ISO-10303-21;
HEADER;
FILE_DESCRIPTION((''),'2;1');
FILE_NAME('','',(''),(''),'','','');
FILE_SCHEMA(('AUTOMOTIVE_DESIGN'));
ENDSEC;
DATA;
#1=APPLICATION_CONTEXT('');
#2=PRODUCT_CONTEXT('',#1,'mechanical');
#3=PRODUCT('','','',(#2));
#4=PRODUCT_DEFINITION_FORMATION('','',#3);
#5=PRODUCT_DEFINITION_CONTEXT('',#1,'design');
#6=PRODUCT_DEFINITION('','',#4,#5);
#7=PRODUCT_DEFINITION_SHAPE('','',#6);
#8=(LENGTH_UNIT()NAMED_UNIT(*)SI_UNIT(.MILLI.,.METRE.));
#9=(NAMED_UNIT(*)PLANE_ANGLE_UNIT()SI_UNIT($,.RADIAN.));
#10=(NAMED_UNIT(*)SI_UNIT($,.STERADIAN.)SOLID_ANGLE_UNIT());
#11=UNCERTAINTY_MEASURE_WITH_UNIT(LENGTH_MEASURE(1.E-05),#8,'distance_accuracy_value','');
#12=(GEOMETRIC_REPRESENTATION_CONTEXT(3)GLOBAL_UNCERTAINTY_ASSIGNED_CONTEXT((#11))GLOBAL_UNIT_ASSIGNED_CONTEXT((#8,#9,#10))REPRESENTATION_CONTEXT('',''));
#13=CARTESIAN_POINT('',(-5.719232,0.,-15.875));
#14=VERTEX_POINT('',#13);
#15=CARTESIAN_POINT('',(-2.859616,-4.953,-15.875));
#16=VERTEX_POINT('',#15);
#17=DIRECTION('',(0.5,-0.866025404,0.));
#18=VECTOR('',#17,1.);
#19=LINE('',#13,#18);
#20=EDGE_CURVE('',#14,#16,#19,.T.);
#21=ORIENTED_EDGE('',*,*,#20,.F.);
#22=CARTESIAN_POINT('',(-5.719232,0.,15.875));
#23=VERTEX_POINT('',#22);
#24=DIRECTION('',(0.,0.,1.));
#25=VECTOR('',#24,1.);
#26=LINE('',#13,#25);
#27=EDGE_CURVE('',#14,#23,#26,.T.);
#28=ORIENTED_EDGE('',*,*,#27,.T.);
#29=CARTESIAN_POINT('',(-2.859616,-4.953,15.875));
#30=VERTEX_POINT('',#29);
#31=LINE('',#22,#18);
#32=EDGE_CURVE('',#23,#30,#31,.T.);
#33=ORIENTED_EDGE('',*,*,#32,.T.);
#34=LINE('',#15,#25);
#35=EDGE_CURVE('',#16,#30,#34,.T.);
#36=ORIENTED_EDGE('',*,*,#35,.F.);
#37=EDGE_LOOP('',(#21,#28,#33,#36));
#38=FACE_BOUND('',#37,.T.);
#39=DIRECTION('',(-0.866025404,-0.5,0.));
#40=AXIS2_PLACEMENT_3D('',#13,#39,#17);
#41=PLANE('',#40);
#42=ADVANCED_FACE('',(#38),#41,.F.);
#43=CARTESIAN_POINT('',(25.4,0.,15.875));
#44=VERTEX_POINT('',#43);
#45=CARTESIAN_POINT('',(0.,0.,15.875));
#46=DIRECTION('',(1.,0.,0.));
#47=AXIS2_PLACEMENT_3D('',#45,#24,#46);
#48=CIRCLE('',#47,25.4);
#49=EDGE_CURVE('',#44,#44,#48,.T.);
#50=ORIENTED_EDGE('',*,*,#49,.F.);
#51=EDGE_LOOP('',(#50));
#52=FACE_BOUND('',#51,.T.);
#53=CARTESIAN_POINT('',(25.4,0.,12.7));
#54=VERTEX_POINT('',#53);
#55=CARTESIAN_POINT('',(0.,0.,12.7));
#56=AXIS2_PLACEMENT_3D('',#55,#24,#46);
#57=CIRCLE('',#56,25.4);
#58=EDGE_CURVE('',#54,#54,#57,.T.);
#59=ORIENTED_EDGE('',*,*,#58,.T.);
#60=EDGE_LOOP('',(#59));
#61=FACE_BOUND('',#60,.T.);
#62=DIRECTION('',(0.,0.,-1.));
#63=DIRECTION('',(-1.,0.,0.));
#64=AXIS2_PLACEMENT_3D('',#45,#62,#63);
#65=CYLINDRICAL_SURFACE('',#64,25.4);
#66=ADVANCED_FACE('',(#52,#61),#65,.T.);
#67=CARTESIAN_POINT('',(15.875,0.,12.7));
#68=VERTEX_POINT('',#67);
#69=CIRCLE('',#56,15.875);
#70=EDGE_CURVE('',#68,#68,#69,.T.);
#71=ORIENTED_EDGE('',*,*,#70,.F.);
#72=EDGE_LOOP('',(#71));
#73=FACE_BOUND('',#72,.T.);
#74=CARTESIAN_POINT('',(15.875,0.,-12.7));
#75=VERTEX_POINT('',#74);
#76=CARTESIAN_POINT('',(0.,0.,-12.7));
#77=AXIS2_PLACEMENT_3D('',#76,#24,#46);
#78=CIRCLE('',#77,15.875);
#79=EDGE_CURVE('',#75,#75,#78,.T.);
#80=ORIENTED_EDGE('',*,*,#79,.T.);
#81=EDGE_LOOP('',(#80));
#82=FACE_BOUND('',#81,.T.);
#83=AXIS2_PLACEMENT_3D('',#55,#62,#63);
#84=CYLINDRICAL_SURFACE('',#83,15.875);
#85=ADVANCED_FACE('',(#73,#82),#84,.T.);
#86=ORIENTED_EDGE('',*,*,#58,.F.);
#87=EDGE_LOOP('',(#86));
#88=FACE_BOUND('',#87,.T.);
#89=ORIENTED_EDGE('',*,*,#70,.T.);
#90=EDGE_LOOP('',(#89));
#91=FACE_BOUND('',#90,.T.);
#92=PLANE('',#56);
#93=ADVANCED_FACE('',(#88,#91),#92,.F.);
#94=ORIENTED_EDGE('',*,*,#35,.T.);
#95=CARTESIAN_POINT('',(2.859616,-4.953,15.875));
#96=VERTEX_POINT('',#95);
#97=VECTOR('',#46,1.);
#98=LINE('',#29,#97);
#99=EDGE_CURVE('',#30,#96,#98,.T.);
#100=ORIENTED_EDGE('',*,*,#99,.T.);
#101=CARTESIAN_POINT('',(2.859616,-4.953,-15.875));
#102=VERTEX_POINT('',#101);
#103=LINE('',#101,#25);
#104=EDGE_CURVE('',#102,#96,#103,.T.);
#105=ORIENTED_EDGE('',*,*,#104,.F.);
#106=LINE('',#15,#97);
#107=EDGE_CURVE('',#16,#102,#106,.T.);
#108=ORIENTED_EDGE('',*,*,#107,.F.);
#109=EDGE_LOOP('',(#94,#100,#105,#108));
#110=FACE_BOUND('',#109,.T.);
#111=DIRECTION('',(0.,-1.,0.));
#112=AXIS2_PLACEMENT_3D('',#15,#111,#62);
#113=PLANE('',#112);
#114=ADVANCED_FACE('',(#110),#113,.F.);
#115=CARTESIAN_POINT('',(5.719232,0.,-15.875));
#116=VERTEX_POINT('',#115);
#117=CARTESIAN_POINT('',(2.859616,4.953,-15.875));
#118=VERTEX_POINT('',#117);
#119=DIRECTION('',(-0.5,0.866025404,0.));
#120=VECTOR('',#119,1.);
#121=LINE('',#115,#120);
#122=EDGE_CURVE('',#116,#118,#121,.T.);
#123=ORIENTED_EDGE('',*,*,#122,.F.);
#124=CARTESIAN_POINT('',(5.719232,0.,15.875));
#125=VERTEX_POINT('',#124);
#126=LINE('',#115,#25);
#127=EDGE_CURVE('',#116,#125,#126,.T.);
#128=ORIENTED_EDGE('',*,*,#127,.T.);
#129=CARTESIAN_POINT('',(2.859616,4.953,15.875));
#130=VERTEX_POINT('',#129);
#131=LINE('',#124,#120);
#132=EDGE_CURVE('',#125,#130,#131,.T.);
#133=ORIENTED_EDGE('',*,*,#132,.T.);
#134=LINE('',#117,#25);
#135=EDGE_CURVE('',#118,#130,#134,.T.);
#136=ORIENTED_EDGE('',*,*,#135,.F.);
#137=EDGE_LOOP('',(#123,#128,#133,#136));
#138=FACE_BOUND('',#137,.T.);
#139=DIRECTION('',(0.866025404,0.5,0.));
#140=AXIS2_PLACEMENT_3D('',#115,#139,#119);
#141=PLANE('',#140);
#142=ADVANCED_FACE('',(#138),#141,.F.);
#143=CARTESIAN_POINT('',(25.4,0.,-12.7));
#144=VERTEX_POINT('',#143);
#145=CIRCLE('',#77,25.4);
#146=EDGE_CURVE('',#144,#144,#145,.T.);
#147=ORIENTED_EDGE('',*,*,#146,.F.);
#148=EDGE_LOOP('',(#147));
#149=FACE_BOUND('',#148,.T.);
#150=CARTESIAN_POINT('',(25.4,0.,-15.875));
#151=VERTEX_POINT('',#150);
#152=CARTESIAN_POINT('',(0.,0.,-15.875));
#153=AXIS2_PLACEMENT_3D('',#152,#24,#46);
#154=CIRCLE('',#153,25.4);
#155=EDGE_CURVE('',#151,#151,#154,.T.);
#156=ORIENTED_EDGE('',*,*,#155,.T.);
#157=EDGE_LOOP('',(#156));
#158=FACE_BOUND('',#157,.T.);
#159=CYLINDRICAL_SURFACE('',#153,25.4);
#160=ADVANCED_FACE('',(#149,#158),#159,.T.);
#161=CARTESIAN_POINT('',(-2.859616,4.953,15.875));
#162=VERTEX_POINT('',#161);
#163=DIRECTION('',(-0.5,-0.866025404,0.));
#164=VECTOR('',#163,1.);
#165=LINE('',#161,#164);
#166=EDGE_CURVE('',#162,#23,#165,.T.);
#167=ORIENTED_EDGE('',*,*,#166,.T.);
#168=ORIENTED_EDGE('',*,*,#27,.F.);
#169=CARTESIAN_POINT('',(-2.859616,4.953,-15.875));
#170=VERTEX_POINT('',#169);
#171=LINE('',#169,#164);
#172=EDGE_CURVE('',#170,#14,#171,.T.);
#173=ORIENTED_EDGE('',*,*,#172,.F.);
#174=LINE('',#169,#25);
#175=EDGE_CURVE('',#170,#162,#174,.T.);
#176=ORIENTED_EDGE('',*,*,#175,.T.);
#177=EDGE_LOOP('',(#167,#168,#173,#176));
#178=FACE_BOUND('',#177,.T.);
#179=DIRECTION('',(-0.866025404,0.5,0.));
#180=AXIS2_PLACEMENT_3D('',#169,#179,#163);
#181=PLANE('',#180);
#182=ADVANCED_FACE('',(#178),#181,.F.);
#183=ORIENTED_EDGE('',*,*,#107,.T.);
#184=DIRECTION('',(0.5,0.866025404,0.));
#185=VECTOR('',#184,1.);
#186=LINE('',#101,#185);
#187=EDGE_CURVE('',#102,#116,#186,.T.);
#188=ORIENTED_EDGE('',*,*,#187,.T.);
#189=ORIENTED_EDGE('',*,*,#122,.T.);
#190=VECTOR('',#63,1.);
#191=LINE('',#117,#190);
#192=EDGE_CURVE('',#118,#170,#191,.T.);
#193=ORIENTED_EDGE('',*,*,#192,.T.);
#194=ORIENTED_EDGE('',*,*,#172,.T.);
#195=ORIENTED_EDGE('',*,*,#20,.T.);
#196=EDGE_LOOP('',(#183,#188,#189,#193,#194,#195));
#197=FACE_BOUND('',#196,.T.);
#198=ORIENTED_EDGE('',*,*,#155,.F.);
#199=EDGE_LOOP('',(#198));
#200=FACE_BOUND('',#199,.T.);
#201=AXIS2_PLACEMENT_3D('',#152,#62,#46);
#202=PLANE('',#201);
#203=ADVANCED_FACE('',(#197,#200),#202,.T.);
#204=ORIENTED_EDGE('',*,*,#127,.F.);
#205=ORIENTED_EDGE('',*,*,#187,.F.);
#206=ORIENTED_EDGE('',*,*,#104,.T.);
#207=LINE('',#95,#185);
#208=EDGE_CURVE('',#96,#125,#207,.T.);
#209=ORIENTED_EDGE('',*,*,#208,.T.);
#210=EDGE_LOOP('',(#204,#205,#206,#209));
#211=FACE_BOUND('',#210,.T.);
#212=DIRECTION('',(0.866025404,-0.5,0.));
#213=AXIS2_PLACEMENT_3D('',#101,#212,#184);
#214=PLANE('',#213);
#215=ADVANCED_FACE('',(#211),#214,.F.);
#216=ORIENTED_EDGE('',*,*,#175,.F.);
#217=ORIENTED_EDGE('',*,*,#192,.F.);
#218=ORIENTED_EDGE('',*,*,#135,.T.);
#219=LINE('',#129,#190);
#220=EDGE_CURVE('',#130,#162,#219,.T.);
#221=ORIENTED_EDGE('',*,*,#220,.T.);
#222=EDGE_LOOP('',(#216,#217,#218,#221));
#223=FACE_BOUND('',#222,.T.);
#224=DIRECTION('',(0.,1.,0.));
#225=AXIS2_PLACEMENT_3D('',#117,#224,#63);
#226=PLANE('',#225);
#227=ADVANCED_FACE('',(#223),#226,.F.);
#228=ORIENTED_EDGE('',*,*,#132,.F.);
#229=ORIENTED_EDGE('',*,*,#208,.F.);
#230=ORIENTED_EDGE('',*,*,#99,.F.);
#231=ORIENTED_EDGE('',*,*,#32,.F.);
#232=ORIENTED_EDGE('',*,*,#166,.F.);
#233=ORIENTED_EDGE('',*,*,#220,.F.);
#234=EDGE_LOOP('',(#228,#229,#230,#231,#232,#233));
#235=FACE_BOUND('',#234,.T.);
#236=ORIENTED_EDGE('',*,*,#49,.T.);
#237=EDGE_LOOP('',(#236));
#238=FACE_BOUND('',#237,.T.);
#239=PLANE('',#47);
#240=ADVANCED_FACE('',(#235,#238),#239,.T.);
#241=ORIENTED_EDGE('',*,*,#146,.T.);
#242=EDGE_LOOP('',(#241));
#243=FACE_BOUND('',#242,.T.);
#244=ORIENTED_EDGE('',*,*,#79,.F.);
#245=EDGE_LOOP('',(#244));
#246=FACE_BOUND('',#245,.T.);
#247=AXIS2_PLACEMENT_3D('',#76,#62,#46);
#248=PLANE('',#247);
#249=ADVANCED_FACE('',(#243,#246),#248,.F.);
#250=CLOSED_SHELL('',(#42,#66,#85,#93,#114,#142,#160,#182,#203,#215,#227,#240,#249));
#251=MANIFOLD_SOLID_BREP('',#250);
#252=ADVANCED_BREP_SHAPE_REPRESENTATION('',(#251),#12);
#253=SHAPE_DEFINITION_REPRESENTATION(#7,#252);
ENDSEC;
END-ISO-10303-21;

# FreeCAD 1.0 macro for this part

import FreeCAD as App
import Part
import Sketcher

V = App.Vector
Q = App.Units.Quantity

doc = App.newDocument("Part")
body = doc.addObject("PartDesign::Body", "Body")

sketch1 = body.newObject("Sketcher::SketchObject", "Sketch")
sketch1.AttachmentSupport = (doc.getObject("XY_Plane"), [""])
sketch1.MapMode = "FlatFace"
sketch1.addGeometry(Part.Circle(V(0, 0, 0), V(0, 0, 1), 16), False)
sketch1.addConstraint([
    Sketcher.Constraint("Coincident", 0, 3, -1, 1),
    Sketcher.Constraint("Diameter", 0, Q("1.25 in")),
])
pad1 = body.newObject("PartDesign::Pad", "Pad")
pad1.Profile = sketch1
pad1.Length = Q("1 in")
pad1.Midplane = True

sketch2 = body.newObject("Sketcher::SketchObject", "Sketch001")
sketch2.AttachmentSupport = (doc.getObject("XY_Plane"), [""])
sketch2.MapMode = "FlatFace"
sketch2.AttachmentOffset = App.Placement(V(0, 0, 0.5 * 25.4), App.Rotation())
sketch2.addGeometry(Part.Circle(V(0, 0, 0), V(0, 0, 1), 25), False)
sketch2.addConstraint([
    Sketcher.Constraint("Coincident", 0, 3, -1, 1),
    Sketcher.Constraint("Diameter", 0, Q("2 in")),
])
pad2 = body.newObject("PartDesign::Pad", "Pad001")
pad2.Profile = sketch2
pad2.Length = Q("0.125 in")
doc.recompute()

mirrored = body.newObject("PartDesign::Mirrored", "Mirrored")
mirrored.Originals = [pad2]
mirrored.MirrorPlane = (doc.getObject("XY_Plane"), [""])
body.Tip = mirrored

sketch3 = body.newObject("Sketcher::SketchObject", "Sketch002")
sketch3.AttachmentSupport = (doc.getObject("XY_Plane"), [""])
sketch3.MapMode = "FlatFace"
sketch3.AttachmentOffset = App.Placement(V(0, 0, 0.625 * 25.4), App.Rotation())
sketch3.addGeometry([
    Part.LineSegment(V(6, 0, 0), V(3, 5, 0)),
    Part.LineSegment(V(3, 5, 0), V(-3, 5, 0)),
    Part.LineSegment(V(-3, 5, 0), V(-6, 0, 0)),
    Part.LineSegment(V(-6, 0, 0), V(-3, -5, 0)),
    Part.LineSegment(V(-3, -5, 0), V(3, -5, 0)),
    Part.LineSegment(V(3, -5, 0), V(6, 0, 0)),
], False)
sketch3.addConstraint([
    Sketcher.Constraint("Coincident", 0, 2, 1, 1),
    Sketcher.Constraint("Coincident", 1, 2, 2, 1),
    Sketcher.Constraint("Coincident", 2, 2, 3, 1),
    Sketcher.Constraint("Coincident", 3, 2, 4, 1),
    Sketcher.Constraint("Coincident", 4, 2, 5, 1),
    Sketcher.Constraint("Coincident", 5, 2, 0, 1),
    Sketcher.Constraint("Horizontal", 1),
    Sketcher.Constraint("Horizontal", 4),
    Sketcher.Constraint("Symmetric", 0, 2, 3, 2, -1, 1),
    Sketcher.Constraint("Symmetric", 2, 2, 5, 2, -1, 1),
    Sketcher.Constraint("PointOnObject", 2, 2, -1),
    Sketcher.Constraint("Parallel", 2, 5),
    Sketcher.Constraint("Vertical", 1, 2, 3, 2),
    Sketcher.Constraint("Angle", 0, Q("120 deg")),
    Sketcher.Constraint("DistanceY", 3, 2, 1, 2, Q("0.39 in")),
    Sketcher.Constraint("DistanceX", 1, 2, 1, 1, Q("5.719232 mm")),
])
pocket1 = body.newObject("PartDesign::Pocket", "Pocket")
pocket1.Profile = sketch3
pocket1.Type = "ThroughAll"

doc.recompute()
